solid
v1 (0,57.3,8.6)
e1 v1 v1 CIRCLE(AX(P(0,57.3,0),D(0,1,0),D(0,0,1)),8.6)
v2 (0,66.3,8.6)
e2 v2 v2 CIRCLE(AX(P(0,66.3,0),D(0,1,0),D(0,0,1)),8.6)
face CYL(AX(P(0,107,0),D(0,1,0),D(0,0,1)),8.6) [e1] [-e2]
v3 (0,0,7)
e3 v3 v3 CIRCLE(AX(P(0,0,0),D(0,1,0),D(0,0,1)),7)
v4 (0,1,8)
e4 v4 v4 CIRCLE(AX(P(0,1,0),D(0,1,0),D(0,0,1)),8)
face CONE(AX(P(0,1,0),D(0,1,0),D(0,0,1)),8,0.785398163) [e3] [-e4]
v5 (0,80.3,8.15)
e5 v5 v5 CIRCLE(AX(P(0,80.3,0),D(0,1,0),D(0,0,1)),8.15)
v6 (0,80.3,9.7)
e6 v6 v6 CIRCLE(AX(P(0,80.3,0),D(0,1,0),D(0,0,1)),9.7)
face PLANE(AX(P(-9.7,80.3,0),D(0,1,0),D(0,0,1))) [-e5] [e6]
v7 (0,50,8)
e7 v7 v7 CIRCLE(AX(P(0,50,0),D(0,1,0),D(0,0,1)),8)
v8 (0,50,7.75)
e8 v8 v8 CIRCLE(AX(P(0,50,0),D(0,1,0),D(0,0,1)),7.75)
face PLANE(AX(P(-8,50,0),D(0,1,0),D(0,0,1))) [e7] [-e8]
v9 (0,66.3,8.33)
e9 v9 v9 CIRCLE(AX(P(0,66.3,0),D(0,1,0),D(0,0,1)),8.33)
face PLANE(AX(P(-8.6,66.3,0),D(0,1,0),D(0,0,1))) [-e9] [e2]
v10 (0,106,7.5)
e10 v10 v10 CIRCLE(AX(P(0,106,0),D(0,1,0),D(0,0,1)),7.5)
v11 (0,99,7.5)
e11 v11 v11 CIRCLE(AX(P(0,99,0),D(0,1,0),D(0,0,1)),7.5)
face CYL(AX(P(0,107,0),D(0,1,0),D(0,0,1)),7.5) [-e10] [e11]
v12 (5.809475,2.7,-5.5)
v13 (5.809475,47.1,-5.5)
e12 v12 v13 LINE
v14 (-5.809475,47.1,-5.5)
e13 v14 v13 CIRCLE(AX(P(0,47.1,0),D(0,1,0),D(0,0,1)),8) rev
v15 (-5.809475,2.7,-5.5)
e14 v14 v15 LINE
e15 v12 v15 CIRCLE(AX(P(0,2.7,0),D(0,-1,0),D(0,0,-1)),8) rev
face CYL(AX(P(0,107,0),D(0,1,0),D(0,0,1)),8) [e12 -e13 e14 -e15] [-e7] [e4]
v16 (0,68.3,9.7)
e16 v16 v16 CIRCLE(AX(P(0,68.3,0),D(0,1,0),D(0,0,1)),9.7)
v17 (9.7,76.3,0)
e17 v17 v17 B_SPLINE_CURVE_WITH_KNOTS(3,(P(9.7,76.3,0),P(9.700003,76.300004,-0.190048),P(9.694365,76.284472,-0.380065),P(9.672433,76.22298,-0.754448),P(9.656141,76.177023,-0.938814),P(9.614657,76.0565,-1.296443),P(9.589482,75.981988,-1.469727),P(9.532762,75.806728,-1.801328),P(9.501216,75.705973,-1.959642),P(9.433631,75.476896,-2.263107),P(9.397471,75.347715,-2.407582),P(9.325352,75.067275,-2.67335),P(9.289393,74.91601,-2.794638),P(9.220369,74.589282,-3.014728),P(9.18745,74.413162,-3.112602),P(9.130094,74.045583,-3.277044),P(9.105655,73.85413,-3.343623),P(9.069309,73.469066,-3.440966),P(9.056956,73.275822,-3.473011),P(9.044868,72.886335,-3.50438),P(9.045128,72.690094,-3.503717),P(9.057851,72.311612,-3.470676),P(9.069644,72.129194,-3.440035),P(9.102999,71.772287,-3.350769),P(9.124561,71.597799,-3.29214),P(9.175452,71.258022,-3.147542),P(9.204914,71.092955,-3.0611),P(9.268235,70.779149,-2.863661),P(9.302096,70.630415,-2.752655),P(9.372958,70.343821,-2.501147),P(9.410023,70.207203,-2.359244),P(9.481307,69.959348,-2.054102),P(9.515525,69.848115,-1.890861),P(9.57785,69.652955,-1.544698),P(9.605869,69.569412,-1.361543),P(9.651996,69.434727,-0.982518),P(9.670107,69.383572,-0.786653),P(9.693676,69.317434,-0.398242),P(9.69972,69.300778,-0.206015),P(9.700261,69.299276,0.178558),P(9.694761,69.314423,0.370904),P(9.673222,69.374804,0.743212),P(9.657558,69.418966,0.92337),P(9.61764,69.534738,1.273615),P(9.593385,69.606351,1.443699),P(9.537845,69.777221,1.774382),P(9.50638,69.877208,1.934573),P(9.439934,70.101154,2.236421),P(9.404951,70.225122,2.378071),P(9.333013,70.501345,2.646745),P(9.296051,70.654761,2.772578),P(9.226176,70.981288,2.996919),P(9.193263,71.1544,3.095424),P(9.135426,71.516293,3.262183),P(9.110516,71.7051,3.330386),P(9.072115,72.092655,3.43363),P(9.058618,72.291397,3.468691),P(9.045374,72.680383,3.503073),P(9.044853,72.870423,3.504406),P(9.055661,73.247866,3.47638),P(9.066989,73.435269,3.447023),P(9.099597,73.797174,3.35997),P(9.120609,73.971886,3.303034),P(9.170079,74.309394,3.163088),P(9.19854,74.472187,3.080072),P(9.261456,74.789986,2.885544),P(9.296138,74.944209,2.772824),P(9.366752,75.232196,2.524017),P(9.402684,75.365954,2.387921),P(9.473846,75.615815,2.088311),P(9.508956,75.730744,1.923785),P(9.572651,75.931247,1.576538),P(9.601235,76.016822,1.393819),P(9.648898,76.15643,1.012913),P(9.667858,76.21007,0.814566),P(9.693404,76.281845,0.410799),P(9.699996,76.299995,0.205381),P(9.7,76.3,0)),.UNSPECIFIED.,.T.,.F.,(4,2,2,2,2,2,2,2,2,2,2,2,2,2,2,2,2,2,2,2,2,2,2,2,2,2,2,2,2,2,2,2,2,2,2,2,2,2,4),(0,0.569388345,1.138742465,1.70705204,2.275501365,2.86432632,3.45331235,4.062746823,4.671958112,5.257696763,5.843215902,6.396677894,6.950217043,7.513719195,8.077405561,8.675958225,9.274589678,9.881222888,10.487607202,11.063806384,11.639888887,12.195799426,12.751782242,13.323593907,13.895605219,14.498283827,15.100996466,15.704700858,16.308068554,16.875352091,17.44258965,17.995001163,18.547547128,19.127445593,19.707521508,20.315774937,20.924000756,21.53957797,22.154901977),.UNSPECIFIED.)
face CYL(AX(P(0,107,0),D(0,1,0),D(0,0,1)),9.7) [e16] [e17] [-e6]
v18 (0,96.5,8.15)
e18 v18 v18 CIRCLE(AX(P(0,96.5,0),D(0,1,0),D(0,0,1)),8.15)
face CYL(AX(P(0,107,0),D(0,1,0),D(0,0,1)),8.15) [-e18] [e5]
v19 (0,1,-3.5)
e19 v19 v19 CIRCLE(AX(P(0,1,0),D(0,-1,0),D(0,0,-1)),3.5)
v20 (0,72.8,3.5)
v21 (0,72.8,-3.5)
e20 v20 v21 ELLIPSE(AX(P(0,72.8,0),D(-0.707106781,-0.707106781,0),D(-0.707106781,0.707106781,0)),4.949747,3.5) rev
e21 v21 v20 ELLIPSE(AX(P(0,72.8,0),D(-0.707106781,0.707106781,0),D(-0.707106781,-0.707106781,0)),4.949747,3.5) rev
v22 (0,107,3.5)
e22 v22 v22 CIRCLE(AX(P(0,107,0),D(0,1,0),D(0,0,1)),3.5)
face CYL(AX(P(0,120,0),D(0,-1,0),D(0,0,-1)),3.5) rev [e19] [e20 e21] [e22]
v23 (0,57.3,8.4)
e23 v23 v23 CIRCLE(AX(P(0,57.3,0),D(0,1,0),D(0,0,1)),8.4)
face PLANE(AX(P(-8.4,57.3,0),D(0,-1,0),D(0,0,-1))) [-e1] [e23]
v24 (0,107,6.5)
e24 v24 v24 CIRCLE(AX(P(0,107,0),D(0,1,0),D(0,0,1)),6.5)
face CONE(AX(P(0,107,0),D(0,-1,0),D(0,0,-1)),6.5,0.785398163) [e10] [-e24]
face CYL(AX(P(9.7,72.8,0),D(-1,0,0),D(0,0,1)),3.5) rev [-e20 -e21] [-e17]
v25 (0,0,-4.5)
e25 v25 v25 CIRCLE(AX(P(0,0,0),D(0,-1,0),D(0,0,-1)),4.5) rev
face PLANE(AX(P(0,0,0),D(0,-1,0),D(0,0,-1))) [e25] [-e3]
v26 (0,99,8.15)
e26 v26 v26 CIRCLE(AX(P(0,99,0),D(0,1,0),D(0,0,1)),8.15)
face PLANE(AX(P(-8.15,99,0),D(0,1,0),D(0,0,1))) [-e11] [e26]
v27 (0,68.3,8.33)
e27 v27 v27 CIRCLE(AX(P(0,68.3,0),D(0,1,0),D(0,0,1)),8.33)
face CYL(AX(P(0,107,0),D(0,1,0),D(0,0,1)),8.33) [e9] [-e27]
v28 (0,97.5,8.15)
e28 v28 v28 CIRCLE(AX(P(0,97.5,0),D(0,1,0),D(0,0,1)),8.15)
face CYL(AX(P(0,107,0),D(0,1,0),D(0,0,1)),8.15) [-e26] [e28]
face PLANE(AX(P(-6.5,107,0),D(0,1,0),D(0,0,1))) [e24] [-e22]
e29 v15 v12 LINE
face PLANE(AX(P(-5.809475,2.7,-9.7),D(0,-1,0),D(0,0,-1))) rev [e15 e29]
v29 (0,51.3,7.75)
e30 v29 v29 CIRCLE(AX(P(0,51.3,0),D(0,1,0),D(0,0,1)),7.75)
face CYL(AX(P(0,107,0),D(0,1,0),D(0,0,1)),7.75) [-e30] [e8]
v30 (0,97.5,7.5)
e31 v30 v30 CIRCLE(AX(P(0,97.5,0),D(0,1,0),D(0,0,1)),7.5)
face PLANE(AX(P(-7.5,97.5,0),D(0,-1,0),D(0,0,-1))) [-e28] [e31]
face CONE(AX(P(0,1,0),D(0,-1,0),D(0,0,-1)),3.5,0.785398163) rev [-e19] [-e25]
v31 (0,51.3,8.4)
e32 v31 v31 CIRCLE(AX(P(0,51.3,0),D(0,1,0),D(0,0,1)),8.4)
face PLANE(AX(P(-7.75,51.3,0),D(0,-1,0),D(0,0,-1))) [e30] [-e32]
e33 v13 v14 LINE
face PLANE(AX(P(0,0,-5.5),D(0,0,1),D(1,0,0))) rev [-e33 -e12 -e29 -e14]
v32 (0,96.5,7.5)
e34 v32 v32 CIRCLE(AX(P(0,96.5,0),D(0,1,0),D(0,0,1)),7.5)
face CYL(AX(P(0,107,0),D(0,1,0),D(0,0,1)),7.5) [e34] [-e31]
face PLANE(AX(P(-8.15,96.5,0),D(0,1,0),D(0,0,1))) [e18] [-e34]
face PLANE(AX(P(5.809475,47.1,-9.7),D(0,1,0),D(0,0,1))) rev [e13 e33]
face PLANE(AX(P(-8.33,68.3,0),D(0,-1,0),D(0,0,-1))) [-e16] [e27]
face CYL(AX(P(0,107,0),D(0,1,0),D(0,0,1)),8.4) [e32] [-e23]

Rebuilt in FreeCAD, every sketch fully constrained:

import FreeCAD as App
import Part
import Sketcher
from FreeCAD import Vector
Q = App.Units.Quantity


def edges_at(feature, points):
    """Names of the edges that pass closest to the given points."""
    edges = feature.Shape.Edges
    near = lambda p: min(range(len(edges)), key=lambda i: edges[i].distToShape(Part.Vertex(*p))[0])
    return sorted({f"Edge{near(p) + 1}" for p in points})

doc = App.newDocument("Part")
params = doc.addObject("Spreadsheet::Sheet", "Params")
for row, (alias, value) in enumerate([
    ("sketch1_width", "7 mm"),
    ("sketch1_height", "107 mm"),
    ("sketch1_height2", "1 mm"),
    ("sketch1_height3", "12 mm"),
    ("sketch1_height4", "2 mm"),
    ("revolution_angle", "360 deg"),
    ("sketch2_height", "44.4 mm"),
    ("sketch3_diameter", "7 mm"),
    ("sketch4_diameter", "7 mm"),
    ("pocket3_length", "120 mm"),
    ("chamfer_size", "1 mm"),
], start=1):
    params.set(f"A{row}", alias)
    params.set(f"B{row}", "=" + value)
    params.setAlias(f"B{row}", alias)

body = doc.addObject("PartDesign::Body", "Body")

sketch1 = body.newObject("Sketcher::SketchObject", "Sketch")
sketch1.AttachmentSupport = (doc.getObject("XY_Plane"), [""])
sketch1.MapMode = "FlatFace"
sketch1.addGeometry([
    Part.LineSegment(Vector(-7, 0, 0), Vector(0, 0, 0)),
    Part.LineSegment(Vector(0, 0, 0), Vector(0, 107, 0)),
    Part.LineSegment(Vector(0, 107, 0), Vector(-6.5, 107, 0)),
    Part.LineSegment(Vector(-6.5, 107, 0), Vector(-7.5, 106, 0)),
    Part.LineSegment(Vector(-7.5, 106, 0), Vector(-7.5, 99, 0)),
    Part.LineSegment(Vector(-7.5, 99, 0), Vector(-8.15, 99, 0)),
    Part.LineSegment(Vector(-8.15, 99, 0), Vector(-8.15, 97.5, 0)),
    Part.LineSegment(Vector(-8.15, 97.5, 0), Vector(-7.5, 97.5, 0)),
    Part.LineSegment(Vector(-7.5, 97.5, 0), Vector(-7.5, 96.5, 0)),
    Part.LineSegment(Vector(-7.5, 96.5, 0), Vector(-8.15, 96.5, 0)),
    Part.LineSegment(Vector(-8.15, 96.5, 0), Vector(-8.15, 80.3, 0)),
    Part.LineSegment(Vector(-8.15, 80.3, 0), Vector(-9.7, 80.3, 0)),
    Part.LineSegment(Vector(-9.7, 80.3, 0), Vector(-9.7, 68.3, 0)),
    Part.LineSegment(Vector(-9.7, 68.3, 0), Vector(-8.33, 68.3, 0)),
    Part.LineSegment(Vector(-8.33, 68.3, 0), Vector(-8.33, 66.3, 0)),
    Part.LineSegment(Vector(-8.33, 66.3, 0), Vector(-8.6, 66.3, 0)),
    Part.LineSegment(Vector(-8.6, 66.3, 0), Vector(-8.6, 57.3, 0)),
    Part.LineSegment(Vector(-8.6, 57.3, 0), Vector(-8.4, 57.3, 0)),
    Part.LineSegment(Vector(-8.4, 57.3, 0), Vector(-8.4, 51.3, 0)),
    Part.LineSegment(Vector(-8.4, 51.3, 0), Vector(-7.75, 51.3, 0)),
    Part.LineSegment(Vector(-7.75, 51.3, 0), Vector(-7.75, 50, 0)),
    Part.LineSegment(Vector(-7.75, 50, 0), Vector(-8, 50, 0)),
    Part.LineSegment(Vector(-8, 50, 0), Vector(-8, 1, 0)),
    Part.LineSegment(Vector(-8, 1, 0), Vector(-7, 0, 0)),
], False)
sketch1.addConstraint([
    Sketcher.Constraint("Coincident", 0, 2, 1, 1),
    Sketcher.Constraint("Coincident", 1, 2, 2, 1),
    Sketcher.Constraint("Coincident", 2, 2, 3, 1),
    Sketcher.Constraint("Coincident", 3, 2, 4, 1),
    Sketcher.Constraint("Coincident", 4, 2, 5, 1),
    Sketcher.Constraint("Coincident", 5, 2, 6, 1),
    Sketcher.Constraint("Coincident", 6, 2, 7, 1),
    Sketcher.Constraint("Coincident", 7, 2, 8, 1),
    Sketcher.Constraint("Coincident", 8, 2, 9, 1),
    Sketcher.Constraint("Coincident", 9, 2, 10, 1),
    Sketcher.Constraint("Coincident", 10, 2, 11, 1),
    Sketcher.Constraint("Coincident", 11, 2, 12, 1),
    Sketcher.Constraint("Coincident", 12, 2, 13, 1),
    Sketcher.Constraint("Coincident", 13, 2, 14, 1),
    Sketcher.Constraint("Coincident", 14, 2, 15, 1),
    Sketcher.Constraint("Coincident", 15, 2, 16, 1),
    Sketcher.Constraint("Coincident", 16, 2, 17, 1),
    Sketcher.Constraint("Coincident", 17, 2, 18, 1),
    Sketcher.Constraint("Coincident", 18, 2, 19, 1),
    Sketcher.Constraint("Coincident", 19, 2, 20, 1),
    Sketcher.Constraint("Coincident", 20, 2, 21, 1),
    Sketcher.Constraint("Coincident", 21, 2, 22, 1),
    Sketcher.Constraint("Coincident", 22, 2, 23, 1),
    Sketcher.Constraint("Coincident", 23, 2, 0, 1),
    Sketcher.Constraint("Horizontal", 0),
    Sketcher.Constraint("Vertical", 1),
    Sketcher.Constraint("Horizontal", 2),
    Sketcher.Constraint("Vertical", 4),
    Sketcher.Constraint("Horizontal", 5),
    Sketcher.Constraint("Vertical", 6),
    Sketcher.Constraint("Horizontal", 7),
    Sketcher.Constraint("Vertical", 8),
    Sketcher.Constraint("Horizontal", 9),
    Sketcher.Constraint("Vertical", 10),
    Sketcher.Constraint("Horizontal", 11),
    Sketcher.Constraint("Vertical", 12),
    Sketcher.Constraint("Horizontal", 13),
    Sketcher.Constraint("Vertical", 14),
    Sketcher.Constraint("Horizontal", 15),
    Sketcher.Constraint("Vertical", 16),
    Sketcher.Constraint("Horizontal", 17),
    Sketcher.Constraint("Vertical", 18),
    Sketcher.Constraint("Horizontal", 19),
    Sketcher.Constraint("Vertical", 20),
    Sketcher.Constraint("Horizontal", 21),
    Sketcher.Constraint("Vertical", 22),
    Sketcher.Constraint("Coincident", 0, 2, -1, 1),
    Sketcher.Constraint("Perpendicular", 3, 23),
    Sketcher.Constraint("Vertical", 4, 2, 7, 2),
    Sketcher.Constraint("Vertical", 6, 2, 9, 2),
    Sketcher.Constraint("Equal", 9, 19),
    Sketcher.Constraint("Equal", 0, 4),
    Sketcher.Constraint("Equal", 3, 23),
    Sketcher.Constraint("DistanceX", 0, 1, 0, 2, Q("7 mm")),
    Sketcher.Constraint("DistanceY", 1, 1, 1, 2, Q("107 mm")),
    Sketcher.Constraint("DistanceY", 8, 2, 8, 1, Q("1 mm")),
    Sketcher.Constraint("DistanceY", 12, 2, 12, 1, Q("12 mm")),
    Sketcher.Constraint("DistanceY", 14, 2, 14, 1, Q("2 mm")),
    Sketcher.Constraint("DistanceY", 16, 2, 16, 1, Q("9 mm")),
    Sketcher.Constraint("DistanceY", 18, 2, 18, 1, Q("6 mm")),
    Sketcher.Constraint("DistanceY", 22, 2, 22, 1, Q("49 mm")),
    Sketcher.Constraint("Angle", 3, Q("-135 deg")),
    Sketcher.Constraint("DistanceX", 2, 2, 2, 1, Q("6.5 mm")),
    Sketcher.Constraint("DistanceX", 17, 1, 17, 2, Q("0.2 mm")),
    Sketcher.Constraint("DistanceY", 6, 2, 6, 1, Q("1.5 mm")),
    Sketcher.Constraint("DistanceY", 10, 2, 10, 1, Q("16.2 mm")),
    Sketcher.Constraint("DistanceY", 20, 2, 20, 1, Q("1.3 mm")),
    Sketcher.Constraint("DistanceX", 5, 2, 5, 1, Q("0.65 mm")),
    Sketcher.Constraint("DistanceX", 11, 2, 11, 1, Q("1.55 mm")),
    Sketcher.Constraint("DistanceX", 13, 1, 13, 2, Q("1.37 mm")),
    Sketcher.Constraint("DistanceX", 15, 2, 15, 1, Q("0.27 mm")),
])
sketch1.setExpression("Constraints[53]", "Params.sketch1_width")
sketch1.setExpression("Constraints[54]", "Params.sketch1_height")
sketch1.setExpression("Constraints[55]", "Params.sketch1_height2")
sketch1.setExpression("Constraints[56]", "Params.sketch1_height3")
sketch1.setExpression("Constraints[57]", "Params.sketch1_height4")
revolution = body.newObject("PartDesign::Revolution", "Revolution")
revolution.Profile = sketch1
revolution.ReferenceAxis = (sketch1, ["V_Axis"])
revolution.setExpression("Angle", "Params.revolution_angle")

sketch2 = body.newObject("Sketcher::SketchObject", "Sketch001")
sketch2.AttachmentSupport = (doc.getObject("XY_Plane"), [""])
sketch2.MapMode = "FlatFace"
sketch2.AttachmentOffset = App.Placement(Vector(0, 0, -5.5), App.Rotation())
sketch2.addGeometry([
    Part.LineSegment(Vector(-5.809475, 47.1, 0), Vector(-5.809475, 2.7, 0)),
    Part.LineSegment(Vector(-5.809475, 2.7, 0), Vector(5.809475, 2.7, 0)),
    Part.LineSegment(Vector(5.809475, 2.7, 0), Vector(5.809475, 47.1, 0)),
    Part.LineSegment(Vector(5.809475, 47.1, 0), Vector(-5.809475, 47.1, 0)),
], False)
sketch2.addConstraint([
    Sketcher.Constraint("Coincident", 0, 2, 1, 1),
    Sketcher.Constraint("Coincident", 1, 2, 2, 1),
    Sketcher.Constraint("Coincident", 2, 2, 3, 1),
    Sketcher.Constraint("Coincident", 3, 2, 0, 1),
    Sketcher.Constraint("Vertical", 0),
    Sketcher.Constraint("Horizontal", 1),
    Sketcher.Constraint("Vertical", 2),
    Sketcher.Constraint("Horizontal", 3),
    Sketcher.Constraint("DistanceY", 0, 2, 0, 1, Q("44.4 mm")),
    Sketcher.Constraint("DistanceY", -1, 1, 0, 2, Q("2.7 mm")),
    Sketcher.Constraint("DistanceX", 1, 1, 1, 2, Q("11.61895 mm")),
    Sketcher.Constraint("DistanceX", 0, 2, -1, 1, Q("5.809475 mm")),
])
sketch2.setExpression("Constraints[8]", "Params.sketch2_height")
pocket1 = body.newObject("PartDesign::Pocket", "Pocket")
pocket1.Profile = sketch2
pocket1.Type = "ThroughAll"

sketch3 = body.newObject("Sketcher::SketchObject", "Sketch002")
sketch3.AttachmentSupport = (doc.getObject("YZ_Plane"), [""])
sketch3.MapMode = "FlatFace"
sketch3.addGeometry(Part.Circle(Vector(72.8, 0, 0), Vector(0, 0, 1), 3.5), False)
sketch3.addConstraint([
    Sketcher.Constraint("PointOnObject", 0, 3, -1),
    Sketcher.Constraint("Diameter", 0, Q("7 mm")),
    Sketcher.Constraint("DistanceX", -1, 1, 0, 3, Q("72.8 mm")),
])
sketch3.setExpression("Constraints[1]", "Params.sketch3_diameter")
pocket2 = body.newObject("PartDesign::Pocket", "Pocket001")
pocket2.Profile = sketch3
pocket2.Type = "ThroughAll"
pocket2.Reversed = True

sketch4 = body.newObject("Sketcher::SketchObject", "Sketch003")
sketch4.AttachmentSupport = (doc.getObject("XZ_Plane"), [""])
sketch4.MapMode = "FlatFace"
sketch4.addGeometry(Part.Circle(Vector(0, 0, 0), Vector(0, 0, 1), 3.5), False)
sketch4.addConstraint([
    Sketcher.Constraint("Coincident", 0, 3, -1, 1),
    Sketcher.Constraint("Diameter", 0, Q("7 mm")),
])
sketch4.setExpression("Constraints[1]", "Params.sketch4_diameter")
pocket3 = body.newObject("PartDesign::Pocket", "Pocket002")
pocket3.Profile = sketch4
pocket3.setExpression("Length", "Params.pocket3_length")
doc.recompute()

chamfer = body.newObject("PartDesign::Chamfer", "Chamfer")
chamfer.Base = (pocket3, edges_at(pocket3, [(-3.5, 0, 0)]))
chamfer.setExpression("Size", "Params.chamfer_size")

doc.recompute()
